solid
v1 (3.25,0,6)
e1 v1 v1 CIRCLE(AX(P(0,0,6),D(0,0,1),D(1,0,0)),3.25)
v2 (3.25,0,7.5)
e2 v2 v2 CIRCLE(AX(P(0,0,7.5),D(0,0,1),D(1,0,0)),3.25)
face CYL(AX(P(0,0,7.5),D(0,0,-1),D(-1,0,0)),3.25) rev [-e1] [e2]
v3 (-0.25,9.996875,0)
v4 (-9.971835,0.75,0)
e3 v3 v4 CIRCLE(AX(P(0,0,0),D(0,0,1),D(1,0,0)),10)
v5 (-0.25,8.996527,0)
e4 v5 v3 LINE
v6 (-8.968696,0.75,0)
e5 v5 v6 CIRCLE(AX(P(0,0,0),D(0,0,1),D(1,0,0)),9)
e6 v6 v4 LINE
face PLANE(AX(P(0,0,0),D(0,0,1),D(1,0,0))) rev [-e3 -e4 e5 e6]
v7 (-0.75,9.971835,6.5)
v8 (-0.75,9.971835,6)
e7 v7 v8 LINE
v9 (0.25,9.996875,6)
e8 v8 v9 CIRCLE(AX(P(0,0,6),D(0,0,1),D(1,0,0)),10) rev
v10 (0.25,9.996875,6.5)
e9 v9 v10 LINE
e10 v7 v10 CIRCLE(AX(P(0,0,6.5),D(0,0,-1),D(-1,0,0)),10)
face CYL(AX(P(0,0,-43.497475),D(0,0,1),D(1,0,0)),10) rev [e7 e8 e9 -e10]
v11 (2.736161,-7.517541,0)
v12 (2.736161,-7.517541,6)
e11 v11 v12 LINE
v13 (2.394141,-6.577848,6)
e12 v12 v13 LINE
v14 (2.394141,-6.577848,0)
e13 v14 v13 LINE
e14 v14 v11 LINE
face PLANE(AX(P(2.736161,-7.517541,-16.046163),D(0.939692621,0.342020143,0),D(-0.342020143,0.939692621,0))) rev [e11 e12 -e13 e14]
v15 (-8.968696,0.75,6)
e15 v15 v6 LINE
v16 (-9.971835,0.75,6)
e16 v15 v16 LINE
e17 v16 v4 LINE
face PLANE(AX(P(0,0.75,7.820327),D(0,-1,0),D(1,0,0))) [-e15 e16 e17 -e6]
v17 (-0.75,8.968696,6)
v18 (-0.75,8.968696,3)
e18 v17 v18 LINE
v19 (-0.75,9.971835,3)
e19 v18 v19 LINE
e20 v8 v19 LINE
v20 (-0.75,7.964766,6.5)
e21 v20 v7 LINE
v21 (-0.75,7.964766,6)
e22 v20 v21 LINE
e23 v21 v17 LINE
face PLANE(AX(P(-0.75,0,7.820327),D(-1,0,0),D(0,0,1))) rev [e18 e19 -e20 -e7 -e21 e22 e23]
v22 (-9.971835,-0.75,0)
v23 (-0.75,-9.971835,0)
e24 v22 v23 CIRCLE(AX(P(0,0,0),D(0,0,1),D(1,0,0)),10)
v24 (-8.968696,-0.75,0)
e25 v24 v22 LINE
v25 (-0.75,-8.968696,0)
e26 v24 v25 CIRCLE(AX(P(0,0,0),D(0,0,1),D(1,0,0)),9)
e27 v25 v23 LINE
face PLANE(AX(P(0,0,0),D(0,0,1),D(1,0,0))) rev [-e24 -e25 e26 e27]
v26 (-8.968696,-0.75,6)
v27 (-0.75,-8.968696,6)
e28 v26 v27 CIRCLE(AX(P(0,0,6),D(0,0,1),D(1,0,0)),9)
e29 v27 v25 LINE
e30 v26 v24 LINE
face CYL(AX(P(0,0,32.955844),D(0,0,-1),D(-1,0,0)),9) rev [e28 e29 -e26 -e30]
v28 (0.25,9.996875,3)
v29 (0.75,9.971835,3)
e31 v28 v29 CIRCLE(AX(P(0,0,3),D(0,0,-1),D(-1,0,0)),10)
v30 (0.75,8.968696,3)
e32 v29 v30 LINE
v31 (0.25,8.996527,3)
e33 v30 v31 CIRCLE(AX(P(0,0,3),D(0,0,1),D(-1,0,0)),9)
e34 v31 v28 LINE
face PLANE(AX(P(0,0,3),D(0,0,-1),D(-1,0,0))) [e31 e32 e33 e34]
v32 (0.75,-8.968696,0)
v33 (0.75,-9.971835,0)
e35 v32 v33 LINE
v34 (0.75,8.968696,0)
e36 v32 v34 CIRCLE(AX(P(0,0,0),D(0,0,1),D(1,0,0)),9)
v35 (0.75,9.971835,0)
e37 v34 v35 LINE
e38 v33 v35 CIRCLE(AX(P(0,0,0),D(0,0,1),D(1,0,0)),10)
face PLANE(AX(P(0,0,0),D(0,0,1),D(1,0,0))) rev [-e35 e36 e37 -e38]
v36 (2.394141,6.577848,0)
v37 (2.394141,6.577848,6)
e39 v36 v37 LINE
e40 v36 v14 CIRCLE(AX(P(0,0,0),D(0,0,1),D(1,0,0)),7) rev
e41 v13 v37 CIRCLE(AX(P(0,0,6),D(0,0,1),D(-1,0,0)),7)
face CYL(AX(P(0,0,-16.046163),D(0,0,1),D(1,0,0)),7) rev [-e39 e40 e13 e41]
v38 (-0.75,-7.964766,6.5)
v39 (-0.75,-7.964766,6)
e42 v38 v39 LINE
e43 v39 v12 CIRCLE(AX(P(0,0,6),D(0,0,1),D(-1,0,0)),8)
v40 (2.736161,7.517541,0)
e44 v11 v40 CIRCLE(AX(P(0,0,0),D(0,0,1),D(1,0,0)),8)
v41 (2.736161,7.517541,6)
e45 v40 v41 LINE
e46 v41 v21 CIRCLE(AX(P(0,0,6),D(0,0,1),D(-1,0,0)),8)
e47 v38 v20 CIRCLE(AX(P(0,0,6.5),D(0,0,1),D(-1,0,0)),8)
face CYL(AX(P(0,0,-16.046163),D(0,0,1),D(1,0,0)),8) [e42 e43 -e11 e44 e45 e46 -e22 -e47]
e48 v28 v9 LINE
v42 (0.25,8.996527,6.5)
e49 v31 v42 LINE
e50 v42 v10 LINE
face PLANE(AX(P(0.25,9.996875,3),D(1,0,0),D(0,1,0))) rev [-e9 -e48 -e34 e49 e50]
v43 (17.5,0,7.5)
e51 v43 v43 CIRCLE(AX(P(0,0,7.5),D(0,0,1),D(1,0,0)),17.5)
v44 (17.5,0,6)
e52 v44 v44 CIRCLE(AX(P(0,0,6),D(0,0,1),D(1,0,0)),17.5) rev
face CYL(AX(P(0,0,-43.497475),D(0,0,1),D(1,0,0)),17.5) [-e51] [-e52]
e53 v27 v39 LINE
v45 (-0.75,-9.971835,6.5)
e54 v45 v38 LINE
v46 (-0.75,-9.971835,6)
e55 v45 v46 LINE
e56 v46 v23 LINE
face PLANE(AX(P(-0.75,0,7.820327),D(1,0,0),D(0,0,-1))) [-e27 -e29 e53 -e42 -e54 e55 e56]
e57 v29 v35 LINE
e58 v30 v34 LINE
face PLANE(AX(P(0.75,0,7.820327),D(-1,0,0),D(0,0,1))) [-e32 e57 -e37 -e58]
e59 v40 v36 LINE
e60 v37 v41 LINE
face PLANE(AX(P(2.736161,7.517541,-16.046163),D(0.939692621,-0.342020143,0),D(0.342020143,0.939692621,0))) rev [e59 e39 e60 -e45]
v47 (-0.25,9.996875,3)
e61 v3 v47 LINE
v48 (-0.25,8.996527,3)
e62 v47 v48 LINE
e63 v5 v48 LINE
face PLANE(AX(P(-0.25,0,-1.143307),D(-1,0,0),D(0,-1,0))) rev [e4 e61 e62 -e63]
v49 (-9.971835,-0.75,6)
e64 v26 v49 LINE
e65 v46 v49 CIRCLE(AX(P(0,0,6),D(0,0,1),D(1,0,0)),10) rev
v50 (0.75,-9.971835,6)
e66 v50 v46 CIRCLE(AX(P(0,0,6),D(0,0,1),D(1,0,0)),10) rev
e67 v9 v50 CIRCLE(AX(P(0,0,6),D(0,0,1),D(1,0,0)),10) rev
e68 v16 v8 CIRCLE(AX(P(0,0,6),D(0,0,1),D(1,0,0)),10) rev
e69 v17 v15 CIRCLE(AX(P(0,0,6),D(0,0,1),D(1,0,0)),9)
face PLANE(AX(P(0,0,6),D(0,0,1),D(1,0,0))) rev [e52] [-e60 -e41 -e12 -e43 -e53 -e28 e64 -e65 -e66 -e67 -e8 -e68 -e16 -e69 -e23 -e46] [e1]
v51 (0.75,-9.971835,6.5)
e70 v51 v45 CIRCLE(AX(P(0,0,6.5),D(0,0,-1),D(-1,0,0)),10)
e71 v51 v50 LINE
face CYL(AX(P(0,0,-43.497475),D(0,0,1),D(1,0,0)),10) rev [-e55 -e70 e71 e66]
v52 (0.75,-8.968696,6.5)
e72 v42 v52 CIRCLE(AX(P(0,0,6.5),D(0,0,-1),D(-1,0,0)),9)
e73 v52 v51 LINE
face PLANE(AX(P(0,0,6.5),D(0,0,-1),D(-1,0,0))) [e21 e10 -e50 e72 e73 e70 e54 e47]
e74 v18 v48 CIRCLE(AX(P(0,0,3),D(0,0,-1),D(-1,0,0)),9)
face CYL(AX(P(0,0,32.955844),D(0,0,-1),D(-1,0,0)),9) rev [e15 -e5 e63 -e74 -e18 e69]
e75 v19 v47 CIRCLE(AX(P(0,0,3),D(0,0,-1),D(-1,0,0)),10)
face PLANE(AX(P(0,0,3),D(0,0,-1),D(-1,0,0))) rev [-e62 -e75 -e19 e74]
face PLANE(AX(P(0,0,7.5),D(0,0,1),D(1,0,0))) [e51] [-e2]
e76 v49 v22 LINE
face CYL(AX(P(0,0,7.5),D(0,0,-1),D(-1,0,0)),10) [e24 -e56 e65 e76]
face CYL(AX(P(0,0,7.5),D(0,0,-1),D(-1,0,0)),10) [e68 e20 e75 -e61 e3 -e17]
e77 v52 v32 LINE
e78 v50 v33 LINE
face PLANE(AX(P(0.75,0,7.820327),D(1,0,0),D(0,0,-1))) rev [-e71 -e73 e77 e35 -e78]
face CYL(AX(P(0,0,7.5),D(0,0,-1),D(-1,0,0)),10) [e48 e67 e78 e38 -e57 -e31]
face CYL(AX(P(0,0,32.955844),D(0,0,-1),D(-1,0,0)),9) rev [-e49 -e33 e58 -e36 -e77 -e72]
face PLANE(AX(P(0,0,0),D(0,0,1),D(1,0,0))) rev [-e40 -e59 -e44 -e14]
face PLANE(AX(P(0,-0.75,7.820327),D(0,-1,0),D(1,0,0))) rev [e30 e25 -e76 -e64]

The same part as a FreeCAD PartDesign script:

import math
import FreeCAD as App
import Part
import Sketcher
Q = App.Units.Quantity

doc = App.newDocument("Part")
params = doc.addObject("Spreadsheet::Sheet", "Params")
for row, (alias, value) in enumerate([
    ("sketch1_diameter", "20 mm"),
    ("sketch1_diameter2", "6.5 mm"),
    ("pad1_length", "7.5 mm"),
    ("sketch2_diameter", "18 mm"),
    ("pocket1_length", "6 mm"),
    ("sketch3_radius", "9 mm"),
    ("sketch3_radius2", "10 mm"),
    ("pocket2_length", "6 mm"),
    ("sketch4_radius", "8 mm"),
    ("sketch4_radius2", "7 mm"),
    ("pad2_length", "6 mm"),
    ("sketch5_radius", "10 mm"),
    ("sketch5_radius2", "8 mm"),
    ("sketch5_radius3", "9 mm"),
    ("pocket3_length", "0.5 mm"),
    ("sketch6_radius", "9 mm"),
    ("sketch6_radius2", "10.000001 mm"),
    ("pad3_length", "3.5 mm"),
    ("sketch7_radius", "9 mm"),
    ("sketch7_radius2", "10.000001 mm"),
    ("pad4_length", "3 mm"),
    ("sketch8_diameter", "35 mm"),
    ("sketch8_diameter2", "20 mm"),
    ("pad5_length", "1.5 mm"),
], start=1):
    params.set(f"A{row}", alias)
    params.set(f"B{row}", "=" + value)
    params.setAlias(f"B{row}", alias)

body = doc.addObject("PartDesign::Body", "Body")

sketch1 = body.newObject("Sketcher::SketchObject", "Sketch")
sketch1.AttachmentSupport = (doc.getObject("XY_Plane"), [""])
sketch1.MapMode = "FlatFace"
sketch1.addGeometry([
    Part.Circle(App.Vector(0, 0, 0), App.Vector(0, 0, 1), 10),
    Part.Circle(App.Vector(0, 0, 0), App.Vector(0, 0, 1), 3.25),
], False)
sketch1.addConstraint([
    Sketcher.Constraint("Coincident", 0, 3, -1, 1),
    Sketcher.Constraint("Coincident", 1, 3, -1, 1),
    Sketcher.Constraint("Diameter", 0, 20.0),
    Sketcher.Constraint("Diameter", 1, 6.5),
])
sketch1.setExpression("Constraints[2]", "Params.sketch1_diameter")
sketch1.setExpression("Constraints[3]", "Params.sketch1_diameter2")
pad1 = body.newObject("PartDesign::Pad", "Pad")
pad1.Profile = sketch1
pad1.setExpression("Length", "Params.pad1_length")

sketch2 = body.newObject("Sketcher::SketchObject", "Sketch001")
sketch2.AttachmentSupport = (doc.getObject("XY_Plane"), [""])
sketch2.MapMode = "FlatFace"
sketch2.addGeometry(Part.Circle(App.Vector(0, 0, 0), App.Vector(0, 0, 1), 9), False)
sketch2.addConstraint([
    Sketcher.Constraint("Coincident", 0, 3, -1, 1),
    Sketcher.Constraint("Diameter", 0, 18.0),
])
sketch2.setExpression("Constraints[1]", "Params.sketch2_diameter")
pocket1 = body.newObject("PartDesign::Pocket", "Pocket")
pocket1.Profile = sketch2
pocket1.setExpression("Length", "Params.pocket1_length")
pocket1.Reversed = True

sketch3 = body.newObject("Sketcher::SketchObject", "Sketch002")
sketch3.AttachmentSupport = (doc.getObject("XY_Plane"), [""])
sketch3.MapMode = "FlatFace"
sketch3.addGeometry([
    Part.LineSegment(App.Vector(-0.75, -9.971835, 0), App.Vector(-0.75, -8.968696, 0)),
    Part.ArcOfCircle(Part.Circle(App.Vector(0, 0, 0), App.Vector(0, 0, 1), 9), math.radians(-94.780192), math.radians(-85.219808)),
    Part.LineSegment(App.Vector(0.75, -8.968696, 0), App.Vector(0.75, -9.971835, 0)),
    Part.ArcOfCircle(Part.Circle(App.Vector(0, 0, 0), App.Vector(0, 0, 1), 10), math.radians(-94.301222), math.radians(-85.698778)),
], False)
sketch3.addConstraint([
    Sketcher.Constraint("Coincident", 0, 2, 1, 1),
    Sketcher.Constraint("Coincident", 1, 2, 2, 1),
    Sketcher.Constraint("Coincident", 2, 2, 3, 2),
    Sketcher.Constraint("Coincident", 3, 1, 0, 1),
    Sketcher.Constraint("Vertical", 0),
    Sketcher.Constraint("Vertical", 2),
    Sketcher.Constraint("Coincident", 1, 3, -1, 1),
    Sketcher.Constraint("Coincident", 3, 3, -1, 1),
    Sketcher.Constraint("Horizontal", 0, 2, 1, 2),
    Sketcher.Constraint("Radius", 1, 9.0),
    Sketcher.Constraint("Radius", 3, 10.0),
    Sketcher.Constraint("DistanceX", 0, 2, 1, 2, 1.5),
])
sketch3.setExpression("Constraints[9]", "Params.sketch3_radius")
sketch3.setExpression("Constraints[10]", "Params.sketch3_radius2")
pocket2 = body.newObject("PartDesign::Pocket", "Pocket001")
pocket2.Profile = sketch3
pocket2.setExpression("Length", "Params.pocket2_length")
pocket2.Reversed = True
doc.recompute()

polarpattern = body.newObject("PartDesign::PolarPattern", "PolarPattern")
polarpattern.Originals = [pocket2]
polarpattern.Axis = (doc.getObject("Z_Axis"), [""])
polarpattern.Angle = 180
polarpattern.Occurrences = 3
polarpattern.Reversed = True
body.Tip = polarpattern

sketch4 = body.newObject("Sketcher::SketchObject", "Sketch003")
sketch4.AttachmentSupport = (doc.getObject("XY_Plane"), [""])
sketch4.MapMode = "FlatFace"
sketch4.AttachmentOffset = App.Placement(App.Vector(0, 0, 6), App.Rotation())
sketch4.addGeometry([
    Part.LineSegment(App.Vector(2.394141, 6.577848, 0), App.Vector(2.736161, 7.517541, 0)),
    Part.ArcOfCircle(Part.Circle(App.Vector(0, 0, 0), App.Vector(0, 0, 1), 8), math.radians(-70), math.radians(70)),
    Part.LineSegment(App.Vector(2.736161, -7.517541, 0), App.Vector(2.394141, -6.577848, 0)),
    Part.ArcOfCircle(Part.Circle(App.Vector(0, 0, 0), App.Vector(0, 0, 1), 7), math.radians(-70), math.radians(70)),
], False)
sketch4.addConstraint([
    Sketcher.Constraint("Coincident", 0, 2, 1, 2),
    Sketcher.Constraint("Coincident", 1, 1, 2, 1),
    Sketcher.Constraint("Coincident", 2, 2, 3, 1),
    Sketcher.Constraint("Coincident", 3, 2, 0, 1),
    Sketcher.Constraint("Coincident", 1, 3, -1, 1),
    Sketcher.Constraint("Coincident", 3, 3, -1, 1),
    Sketcher.Constraint("Vertical", 0, 2, 1, 1),
    Sketcher.Constraint("Vertical", 2, 2, 3, 2),
    Sketcher.Constraint("Radius", 1, 8.0),
    Sketcher.Constraint("Radius", 3, 7.0),
    Sketcher.Constraint("Angle", 0, Q("70 deg")),
    Sketcher.Constraint("DistanceX", -1, 1, 0, 2, 2.736161),
])
sketch4.setExpression("Constraints[8]", "Params.sketch4_radius")
sketch4.setExpression("Constraints[9]", "Params.sketch4_radius2")
pad2 = body.newObject("PartDesign::Pad", "Pad001")
pad2.Profile = sketch4
pad2.setExpression("Length", "Params.pad2_length")
pad2.Reversed = True

sketch5 = body.newObject("Sketcher::SketchObject", "Sketch004")
sketch5.AttachmentSupport = (doc.getObject("XY_Plane"), [""])
sketch5.MapMode = "FlatFace"
sketch5.AttachmentOffset = App.Placement(App.Vector(0, 0, 6), App.Rotation())
sketch5.addGeometry([
    Part.LineSegment(App.Vector(0.75, -8.968696, 0), App.Vector(0.75, -9.971835, 0)),
    Part.ArcOfCircle(Part.Circle(App.Vector(0, 0, 0), App.Vector(0, 0, 1), 10), math.radians(-94.301222), math.radians(-85.698778)),
    Part.LineSegment(App.Vector(-0.75, -9.971835, 0), App.Vector(-0.75, -7.964766, 0)),
    Part.ArcOfCircle(Part.Circle(App.Vector(0, 0, 0), App.Vector(0, 0, 1), 8), math.radians(-95.379379), math.radians(95.379379)),
    Part.LineSegment(App.Vector(-0.75, 7.964766, 0), App.Vector(-0.75, 9.971835, 0)),
    Part.ArcOfCircle(Part.Circle(App.Vector(0, 0, 0), App.Vector(0, 0, 1), 10), math.radians(85.698778), math.radians(94.301222)),
    Part.LineSegment(App.Vector(0.75, 9.971835, 0), App.Vector(0.75, 8.968696, 0)),
    Part.ArcOfCircle(Part.Circle(App.Vector(0, 0, 0), App.Vector(0, 0, 1), 9), math.radians(-85.219808), math.radians(85.219808)),
], False)
sketch5.addConstraint([
    Sketcher.Constraint("Coincident", 0, 2, 1, 2),
    Sketcher.Constraint("Coincident", 1, 1, 2, 1),
    Sketcher.Constraint("Coincident", 2, 2, 3, 1),
    Sketcher.Constraint("Coincident", 3, 2, 4, 1),
    Sketcher.Constraint("Coincident", 4, 2, 5, 2),
    Sketcher.Constraint("Coincident", 5, 1, 6, 1),
    Sketcher.Constraint("Coincident", 6, 2, 7, 2),
    Sketcher.Constraint("Coincident", 7, 1, 0, 1),
    Sketcher.Constraint("Vertical", 0),
    Sketcher.Constraint("Vertical", 2),
    Sketcher.Constraint("Vertical", 4),
    Sketcher.Constraint("Vertical", 6),
    Sketcher.Constraint("Coincident", 1, 3, -1, 1),
    Sketcher.Constraint("Coincident", 3, 3, -1, 1),
    Sketcher.Constraint("Coincident", 5, 3, -1, 1),
    Sketcher.Constraint("Coincident", 7, 3, -1, 1),
    Sketcher.Constraint("Equal", 1, 5),
    Sketcher.Constraint("Horizontal", 0, 2, 1, 1),
    Sketcher.Constraint("Horizontal", 4, 2, 5, 1),
    Sketcher.Constraint("Vertical", 2, 2, 3, 2),
    Sketcher.Constraint("Radius", 1, 10.0),
    Sketcher.Constraint("Radius", 3, 8.0),
    Sketcher.Constraint("Radius", 7, 9.0),
    Sketcher.Constraint("DistanceX", 1, 1, 0, 2, 1.5),
])
sketch5.setExpression("Constraints[20]", "Params.sketch5_radius")
sketch5.setExpression("Constraints[21]", "Params.sketch5_radius2")
sketch5.setExpression("Constraints[22]", "Params.sketch5_radius3")
pocket3 = body.newObject("PartDesign::Pocket", "Pocket002")
pocket3.Profile = sketch5
pocket3.setExpression("Length", "Params.pocket3_length")
pocket3.Reversed = True

sketch6 = body.newObject("Sketcher::SketchObject", "Sketch005")
sketch6.AttachmentSupport = (doc.getObject("XY_Plane"), [""])
sketch6.MapMode = "FlatFace"
sketch6.AttachmentOffset = App.Placement(App.Vector(0, 0, 6.5), App.Rotation())
sketch6.addGeometry([
    Part.LineSegment(App.Vector(0.75, 9.971835, 0), App.Vector(0.75, 8.968696, 0)),
    Part.ArcOfCircle(Part.Circle(App.Vector(0, 0, 0), App.Vector(0, 0, 1), 9), math.radians(85.219808), math.radians(88.408246)),
    Part.LineSegment(App.Vector(0.25, 8.996527, 0), App.Vector(0.25, 9.996875, 0)),
    Part.ArcOfCircle(Part.Circle(App.Vector(0, -0.000001, 0), App.Vector(0, 0, 1), 10.000001), math.radians(85.698778), math.radians(88.567456)),
], False)
sketch6.addConstraint([
    Sketcher.Constraint("Coincident", 0, 2, 1, 1),
    Sketcher.Constraint("Coincident", 1, 2, 2, 1),
    Sketcher.Constraint("Coincident", 2, 2, 3, 2),
    Sketcher.Constraint("Coincident", 3, 1, 0, 1),
    Sketcher.Constraint("Vertical", 0),
    Sketcher.Constraint("Vertical", 2),
    Sketcher.Constraint("Coincident", 1, 3, -1, 1),
    Sketcher.Constraint("Coincident", 3, 3, -1, 1),
    Sketcher.Constraint("Radius", 1, 9.0),
    Sketcher.Constraint("Radius", 3, 10.000001),
    Sketcher.Constraint("DistanceX", 1, 2, 0, 2, 0.5),
    Sketcher.Constraint("DistanceX", -1, 1, 0, 2, 0.75),
])
sketch6.setExpression("Constraints[8]", "Params.sketch6_radius")
sketch6.setExpression("Constraints[9]", "Params.sketch6_radius2")
pad3 = body.newObject("PartDesign::Pad", "Pad002")
pad3.Profile = sketch6
pad3.setExpression("Length", "Params.pad3_length")
pad3.Reversed = True

sketch7 = body.newObject("Sketcher::SketchObject", "Sketch006")
sketch7.AttachmentSupport = (doc.getObject("XY_Plane"), [""])
sketch7.MapMode = "FlatFace"
sketch7.AttachmentOffset = App.Placement(App.Vector(0, 0, 3), App.Rotation())
sketch7.addGeometry([
    Part.ArcOfCircle(Part.Circle(App.Vector(0, 0, 0), App.Vector(0, 0, 1), 9), math.radians(91.591754), math.radians(94.780192)),
    Part.LineSegment(App.Vector(-0.75, 8.968696, 0), App.Vector(-0.75, 9.971835, 0)),
    Part.ArcOfCircle(Part.Circle(App.Vector(0, -0.000001, 0), App.Vector(0, 0, 1), 10.000001), math.radians(91.432544), math.radians(94.301222)),
    Part.LineSegment(App.Vector(-0.25, 9.996875, 0), App.Vector(-0.25, 8.996527, 0)),
], False)
sketch7.addConstraint([
    Sketcher.Constraint("Coincident", 0, 2, 1, 1),
    Sketcher.Constraint("Coincident", 1, 2, 2, 2),
    Sketcher.Constraint("Coincident", 2, 1, 3, 1),
    Sketcher.Constraint("Coincident", 3, 2, 0, 1),
    Sketcher.Constraint("Vertical", 1),
    Sketcher.Constraint("Vertical", 3),
    Sketcher.Constraint("Coincident", 0, 3, -1, 1),
    Sketcher.Constraint("Coincident", 2, 3, -1, 1),
    Sketcher.Constraint("Radius", 0, 9.0),
    Sketcher.Constraint("Radius", 2, 10.000001),
    Sketcher.Constraint("DistanceX", 1, 2, 2, 1, 0.5),
    Sketcher.Constraint("DistanceX", 0, 2, -1, 1, 0.75),
])
sketch7.setExpression("Constraints[8]", "Params.sketch7_radius")
sketch7.setExpression("Constraints[9]", "Params.sketch7_radius2")
pad4 = body.newObject("PartDesign::Pad", "Pad003")
pad4.Profile = sketch7
pad4.setExpression("Length", "Params.pad4_length")
pad4.Reversed = True

sketch8 = body.newObject("Sketcher::SketchObject", "Sketch007")
sketch8.AttachmentSupport = (doc.getObject("XY_Plane"), [""])
sketch8.MapMode = "FlatFace"
sketch8.AttachmentOffset = App.Placement(App.Vector(0, 0, 7.5), App.Rotation())
sketch8.addGeometry([
    Part.Circle(App.Vector(0, 0, 0), App.Vector(0, 0, 1), 17.5),
    Part.Circle(App.Vector(0, 0, 0), App.Vector(0, 0, 1), 10),
], False)
sketch8.addConstraint([
    Sketcher.Constraint("Coincident", 0, 3, -1, 1),
    Sketcher.Constraint("Coincident", 1, 3, -1, 1),
    Sketcher.Constraint("Diameter", 0, 35.0),
    Sketcher.Constraint("Diameter", 1, 20.0),
])
sketch8.setExpression("Constraints[2]", "Params.sketch8_diameter")
sketch8.setExpression("Constraints[3]", "Params.sketch8_diameter2")
pad5 = body.newObject("PartDesign::Pad", "Pad004")
pad5.Profile = sketch8
pad5.setExpression("Length", "Params.pad5_length")
pad5.Reversed = True

doc.recompute()
